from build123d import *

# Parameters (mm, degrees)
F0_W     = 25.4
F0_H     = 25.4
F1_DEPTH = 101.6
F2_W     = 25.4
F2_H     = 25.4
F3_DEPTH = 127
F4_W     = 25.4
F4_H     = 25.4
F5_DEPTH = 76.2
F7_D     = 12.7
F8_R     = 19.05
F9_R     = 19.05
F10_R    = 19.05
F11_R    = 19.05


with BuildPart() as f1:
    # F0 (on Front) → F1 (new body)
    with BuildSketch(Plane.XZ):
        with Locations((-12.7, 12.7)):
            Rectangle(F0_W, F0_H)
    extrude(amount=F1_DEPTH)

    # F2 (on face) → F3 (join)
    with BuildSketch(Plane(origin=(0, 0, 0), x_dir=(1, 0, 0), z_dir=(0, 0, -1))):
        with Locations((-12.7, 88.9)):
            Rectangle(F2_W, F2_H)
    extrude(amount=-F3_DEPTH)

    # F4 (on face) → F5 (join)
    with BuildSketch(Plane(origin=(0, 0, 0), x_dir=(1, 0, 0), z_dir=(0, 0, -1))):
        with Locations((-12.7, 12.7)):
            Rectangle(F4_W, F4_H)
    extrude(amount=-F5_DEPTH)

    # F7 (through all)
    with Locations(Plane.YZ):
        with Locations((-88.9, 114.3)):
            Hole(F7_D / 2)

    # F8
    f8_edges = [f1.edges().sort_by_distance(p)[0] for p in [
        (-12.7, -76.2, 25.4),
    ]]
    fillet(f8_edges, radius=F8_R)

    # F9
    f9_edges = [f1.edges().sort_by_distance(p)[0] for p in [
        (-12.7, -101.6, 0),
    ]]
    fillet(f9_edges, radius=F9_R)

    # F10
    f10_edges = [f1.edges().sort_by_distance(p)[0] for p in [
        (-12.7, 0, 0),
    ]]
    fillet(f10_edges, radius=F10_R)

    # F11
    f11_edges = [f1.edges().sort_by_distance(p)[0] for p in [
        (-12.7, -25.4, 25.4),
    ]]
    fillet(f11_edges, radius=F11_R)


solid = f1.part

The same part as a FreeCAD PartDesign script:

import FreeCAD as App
import Part
import Sketcher
Q = App.Units.Quantity


def edges_at(feature, points):
    """Names of the edges that pass closest to the given points."""
    edges = feature.Shape.Edges
    near = lambda p: min(range(len(edges)), key=lambda i: edges[i].distToShape(Part.Vertex(*p))[0])
    return sorted({f"Edge{near(p) + 1}" for p in points})


def add_polygon(sketch, points):
    """Adds a closed chain of lines whose ends are joined by coincident constraints."""
    first, n = sketch.GeometryCount, len(points)
    for a, b in zip(points, points[1:] + points[:1]):
        sketch.addGeometry(Part.LineSegment(App.Vector(*a, 0), App.Vector(*b, 0)), False)
    for i in range(n):
        sketch.addConstraint(Sketcher.Constraint("Coincident", first + i, 2, first + (i + 1) % n, 1))

doc = App.newDocument("Part")
body = doc.addObject("PartDesign::Body", "Body")

# Sketch on XZ plane
sketch1 = doc.addObject("Sketcher::SketchObject", "Sketch")
body.addObject(sketch1)
sketch1.AttachmentSupport = (doc.XZ_Plane, [""])
sketch1.MapMode = "FlatFace"
add_polygon(sketch1, [(-25, 25), (-25, 0), (0, 0), (0, 25)])  # lines 0-3
sketch1.addConstraint(Sketcher.Constraint("Vertical", 0))
sketch1.addConstraint(Sketcher.Constraint("Horizontal", 1))
sketch1.addConstraint(Sketcher.Constraint("Vertical", 2))
sketch1.addConstraint(Sketcher.Constraint("Horizontal", 3))
sketch1.addConstraint(Sketcher.Constraint("Coincident", 1, 2, -1, 1))
sketch1.addConstraint(Sketcher.Constraint("Equal", 3, 0))
sketch1.addConstraint(Sketcher.Constraint("DistanceX", 1, 1, 1, 2, Q("1 in")))
pad1 = doc.addObject("PartDesign::Pad", "Pad")
body.addObject(pad1)
pad1.Profile = sketch1
pad1.Length = Q("4 in")

# Sketch on XY plane
sketch2 = doc.addObject("Sketcher::SketchObject", "Sketch001")
body.addObject(sketch2)
sketch2.AttachmentSupport = (doc.XY_Plane, [""])
sketch2.MapMode = "FlatFace"
add_polygon(sketch2, [(-25, -102), (-25, -76), (0, -76), (0, -102)])  # lines 0-3
sketch2.addConstraint(Sketcher.Constraint("Vertical", 0))
sketch2.addConstraint(Sketcher.Constraint("Horizontal", 1))
sketch2.addConstraint(Sketcher.Constraint("Vertical", 2))
sketch2.addConstraint(Sketcher.Constraint("Horizontal", 3))
sketch2.addConstraint(Sketcher.Constraint("PointOnObject", 1, 2, -2))
sketch2.addConstraint(Sketcher.Constraint("Equal", 3, 0))
sketch2.addConstraint(Sketcher.Constraint("DistanceX", 1, 1, 1, 2, Q("1 in")))
sketch2.addConstraint(Sketcher.Constraint("DistanceY", 0, 2, -1, 1, Q("3 in")))
pad2 = doc.addObject("PartDesign::Pad", "Pad001")
body.addObject(pad2)
pad2.Profile = sketch2
pad2.Length = Q("5 in")

# Sketch on XY plane
sketch3 = doc.addObject("Sketcher::SketchObject", "Sketch002")
body.addObject(sketch3)
sketch3.AttachmentSupport = (doc.XY_Plane, [""])
sketch3.MapMode = "FlatFace"
add_polygon(sketch3, [(-25, -25), (-25, 0), (0, 0), (0, -25)])  # lines 0-3
sketch3.addConstraint(Sketcher.Constraint("Vertical", 0))
sketch3.addConstraint(Sketcher.Constraint("Horizontal", 1))
sketch3.addConstraint(Sketcher.Constraint("Vertical", 2))
sketch3.addConstraint(Sketcher.Constraint("Horizontal", 3))
sketch3.addConstraint(Sketcher.Constraint("Coincident", 1, 2, -1, 1))
sketch3.addConstraint(Sketcher.Constraint("Equal", 3, 0))
sketch3.addConstraint(Sketcher.Constraint("DistanceX", 1, 1, 1, 2, Q("1 in")))
pad3 = doc.addObject("PartDesign::Pad", "Pad002")
body.addObject(pad3)
pad3.Profile = sketch3
pad3.Length = Q("3 in")

# Sketch on YZ plane
sketch4 = doc.addObject("Sketcher::SketchObject", "Sketch003")
body.addObject(sketch4)
sketch4.AttachmentSupport = (doc.YZ_Plane, [""])
sketch4.MapMode = "FlatFace"
sketch4.addGeometry(Part.Circle(App.Vector(-89, 114, 0), App.Vector(0, 0, 1), 6), False)
sketch4.addConstraint(Sketcher.Constraint("Diameter", 0, Q("0.5 in")))
sketch4.addConstraint(Sketcher.Constraint("DistanceX", 0, 3, -1, 1, Q("3.5 in")))
sketch4.addConstraint(Sketcher.Constraint("DistanceY", -1, 1, 0, 3, Q("4.5 in")))
doc.recompute()
hole = doc.addObject("PartDesign::Hole", "Hole")
body.addObject(hole)
hole.Profile = sketch4
hole.ThreadType = "None"
hole.Diameter = Q("0.5 in")
hole.DepthType = "ThroughAll"
doc.recompute()

fillet = doc.addObject("PartDesign::Fillet", "Fillet")
body.addObject(fillet)
fillet.Base = (hole, edges_at(hole, [(-12.7, -76.2, 25.4)]))
fillet.Radius = Q("0.75 in")
doc.recompute()

fillet2 = doc.addObject("PartDesign::Fillet", "Fillet001")
body.addObject(fillet2)
fillet2.Base = (fillet, edges_at(fillet, [(-12.7, -101.6, 0)]))
fillet2.Radius = Q("0.75 in")
doc.recompute()

fillet3 = doc.addObject("PartDesign::Fillet", "Fillet002")
body.addObject(fillet3)
fillet3.Base = (fillet2, edges_at(fillet2, [(-12.7, 0, 0)]))
fillet3.Radius = Q("0.75 in")
doc.recompute()

fillet4 = doc.addObject("PartDesign::Fillet", "Fillet003")
body.addObject(fillet4)
fillet4.Base = (fillet3, edges_at(fillet3, [(-12.7, -25.4, 25.4)]))
fillet4.Radius = Q("0.75 in")

doc.recompute()
